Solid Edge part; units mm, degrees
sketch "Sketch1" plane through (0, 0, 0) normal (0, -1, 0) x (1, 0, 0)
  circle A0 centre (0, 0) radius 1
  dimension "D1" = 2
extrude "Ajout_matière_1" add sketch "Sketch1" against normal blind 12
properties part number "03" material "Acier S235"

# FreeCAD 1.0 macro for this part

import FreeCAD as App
import Part
import Sketcher

V = App.Vector
Q = App.Units.Quantity

doc = App.newDocument("Part")
body = doc.addObject("PartDesign::Body", "Body")

sketch1 = body.newObject("Sketcher::SketchObject", "Sketch")
sketch1.AttachmentSupport = (doc.getObject("XZ_Plane"), [""])
sketch1.MapMode = "FlatFace"
sketch1.addGeometry(Part.Circle(V(0, 0, 0), V(0, 0, 1), 1), False)
sketch1.addConstraint(Sketcher.Constraint("Coincident", 0, 3, -1, 1))
sketch1.addConstraint(Sketcher.Constraint("Diameter", 0, Q("2 mm")))
pad1 = body.newObject("PartDesign::Pad", "Pad")
pad1.Profile = sketch1
pad1.Length = 12
pad1.Reversed = True

doc.recompute()
